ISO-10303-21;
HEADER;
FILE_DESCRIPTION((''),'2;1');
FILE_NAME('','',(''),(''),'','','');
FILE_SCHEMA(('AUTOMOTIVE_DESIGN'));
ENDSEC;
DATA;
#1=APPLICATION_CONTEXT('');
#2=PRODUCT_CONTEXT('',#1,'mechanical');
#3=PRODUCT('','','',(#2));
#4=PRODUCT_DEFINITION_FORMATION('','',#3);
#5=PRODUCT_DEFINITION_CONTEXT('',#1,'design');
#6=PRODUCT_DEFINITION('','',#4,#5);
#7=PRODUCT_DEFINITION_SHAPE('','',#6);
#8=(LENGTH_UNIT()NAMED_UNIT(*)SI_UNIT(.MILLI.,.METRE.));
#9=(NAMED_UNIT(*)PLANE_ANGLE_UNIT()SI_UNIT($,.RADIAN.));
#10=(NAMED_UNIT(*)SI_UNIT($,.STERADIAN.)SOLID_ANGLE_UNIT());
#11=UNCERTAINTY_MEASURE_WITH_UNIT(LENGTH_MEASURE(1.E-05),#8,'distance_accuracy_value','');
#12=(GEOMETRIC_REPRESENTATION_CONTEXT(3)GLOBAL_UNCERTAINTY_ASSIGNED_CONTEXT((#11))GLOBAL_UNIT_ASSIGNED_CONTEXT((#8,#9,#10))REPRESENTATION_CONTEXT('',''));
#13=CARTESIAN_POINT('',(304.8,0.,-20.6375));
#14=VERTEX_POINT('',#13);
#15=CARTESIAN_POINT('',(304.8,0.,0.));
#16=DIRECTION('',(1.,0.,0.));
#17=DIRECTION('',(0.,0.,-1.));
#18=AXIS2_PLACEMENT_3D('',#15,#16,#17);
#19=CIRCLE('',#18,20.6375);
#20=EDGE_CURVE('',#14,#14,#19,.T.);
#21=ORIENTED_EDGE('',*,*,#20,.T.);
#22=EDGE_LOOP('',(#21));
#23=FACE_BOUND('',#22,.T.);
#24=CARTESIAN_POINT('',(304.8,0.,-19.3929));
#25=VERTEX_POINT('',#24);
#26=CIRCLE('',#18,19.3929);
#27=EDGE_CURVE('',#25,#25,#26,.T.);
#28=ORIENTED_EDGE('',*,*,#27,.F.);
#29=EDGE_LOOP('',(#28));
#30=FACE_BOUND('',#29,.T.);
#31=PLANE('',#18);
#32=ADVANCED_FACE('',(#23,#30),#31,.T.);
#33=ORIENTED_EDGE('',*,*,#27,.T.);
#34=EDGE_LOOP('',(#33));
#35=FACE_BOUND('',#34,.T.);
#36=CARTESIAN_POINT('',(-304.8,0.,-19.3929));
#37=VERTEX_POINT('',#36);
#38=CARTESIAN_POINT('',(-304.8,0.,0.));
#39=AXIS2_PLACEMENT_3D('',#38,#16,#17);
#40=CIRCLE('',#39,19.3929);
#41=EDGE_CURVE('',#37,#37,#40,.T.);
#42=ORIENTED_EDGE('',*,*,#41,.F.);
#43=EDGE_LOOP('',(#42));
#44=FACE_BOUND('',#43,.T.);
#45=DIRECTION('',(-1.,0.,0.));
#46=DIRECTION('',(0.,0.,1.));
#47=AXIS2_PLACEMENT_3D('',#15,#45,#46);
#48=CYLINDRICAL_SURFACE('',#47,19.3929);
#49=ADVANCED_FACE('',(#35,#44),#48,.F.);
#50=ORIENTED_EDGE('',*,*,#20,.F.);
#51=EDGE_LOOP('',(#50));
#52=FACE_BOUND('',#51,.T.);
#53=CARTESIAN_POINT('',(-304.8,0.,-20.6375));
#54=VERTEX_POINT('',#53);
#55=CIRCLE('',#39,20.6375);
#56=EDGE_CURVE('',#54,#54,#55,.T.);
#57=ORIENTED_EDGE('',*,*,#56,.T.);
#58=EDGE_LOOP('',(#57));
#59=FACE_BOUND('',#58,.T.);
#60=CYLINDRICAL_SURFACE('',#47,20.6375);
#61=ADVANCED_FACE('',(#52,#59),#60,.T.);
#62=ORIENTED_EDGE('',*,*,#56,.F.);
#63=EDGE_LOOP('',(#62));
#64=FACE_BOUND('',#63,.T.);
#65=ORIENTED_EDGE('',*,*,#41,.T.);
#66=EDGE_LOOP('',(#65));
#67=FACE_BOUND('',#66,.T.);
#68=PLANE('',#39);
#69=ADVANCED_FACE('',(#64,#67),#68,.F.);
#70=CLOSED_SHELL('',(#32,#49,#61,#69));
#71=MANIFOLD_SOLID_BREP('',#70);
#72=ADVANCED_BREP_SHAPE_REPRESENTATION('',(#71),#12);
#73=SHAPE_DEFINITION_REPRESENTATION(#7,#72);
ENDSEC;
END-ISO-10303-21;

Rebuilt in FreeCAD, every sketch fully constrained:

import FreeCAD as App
import Part
import Sketcher

V = App.Vector
Q = App.Units.Quantity

doc = App.newDocument("Part")
params = doc.addObject("Spreadsheet::Sheet", "Params")
for row, (alias, value) in enumerate([
    ("sketch1_diameter", "1.625 in"),
    ("sketch1_diameter2", "1.527 in"),
    ("pad1_length", "24 in"),
], start=1):
    params.set(f"A{row}", alias)
    params.set(f"B{row}", "=" + value)
    params.setAlias(f"B{row}", alias)

body = doc.addObject("PartDesign::Body", "Body")

sketch1 = doc.addObject("Sketcher::SketchObject", "Sketch")
body.addObject(sketch1)
sketch1.AttachmentSupport = (doc.YZ_Plane, [""])
sketch1.MapMode = "FlatFace"
sketch1.addGeometry(Part.Circle(V(0, 0, 0), V(0, 0, 1), 21), False)
sketch1.addGeometry(Part.Circle(V(0, 0, 0), V(0, 0, 1), 19), False)
sketch1.addConstraint(Sketcher.Constraint("Coincident", 0, 3, -1, 1))
sketch1.addConstraint(Sketcher.Constraint("Coincident", 1, 3, -1, 1))
sketch1.addConstraint(Sketcher.Constraint("Diameter", 0, Q("1.625 in")))
sketch1.addConstraint(Sketcher.Constraint("Diameter", 1, Q("1.527 in")))
sketch1.setExpression("Constraints[2]", "Params.sketch1_diameter")
sketch1.setExpression("Constraints[3]", "Params.sketch1_diameter2")
pad1 = doc.addObject("PartDesign::Pad", "Pad")
body.addObject(pad1)
pad1.Profile = sketch1
pad1.setExpression("Length", "Params.pad1_length")
pad1.Midplane = True

doc.recompute()
